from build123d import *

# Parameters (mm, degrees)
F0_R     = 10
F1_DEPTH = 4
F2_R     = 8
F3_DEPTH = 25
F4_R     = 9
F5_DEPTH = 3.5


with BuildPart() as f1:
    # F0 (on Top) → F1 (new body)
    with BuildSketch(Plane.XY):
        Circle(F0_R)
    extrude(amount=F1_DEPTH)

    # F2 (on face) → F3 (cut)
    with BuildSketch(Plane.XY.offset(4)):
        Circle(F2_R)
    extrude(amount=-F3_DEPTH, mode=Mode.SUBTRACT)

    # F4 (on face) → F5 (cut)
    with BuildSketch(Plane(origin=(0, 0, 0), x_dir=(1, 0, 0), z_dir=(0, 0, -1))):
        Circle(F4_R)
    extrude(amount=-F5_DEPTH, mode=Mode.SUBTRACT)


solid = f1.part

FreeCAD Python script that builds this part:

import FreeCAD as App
import Part
import Sketcher
from FreeCAD import Vector
Q = App.Units.Quantity

doc = App.newDocument("Part")
body = doc.addObject("PartDesign::Body", "Body")

# Sketch on XY plane
sketch1 = body.newObject("Sketcher::SketchObject", "Sketch")
sketch1.AttachmentSupport = (doc.getObject("XY_Plane"), [""])
sketch1.MapMode = "FlatFace"
sketch1.addGeometry(Part.Circle(Vector(0, 0, 0), Vector(0, 0, 1), 10), False)
sketch1.addConstraint(Sketcher.Constraint("Coincident", 0, 3, -1, 1))
sketch1.addConstraint(Sketcher.Constraint("Diameter", 0, Q("20 mm")))
pad1 = body.newObject("PartDesign::Pad", "Pad")
pad1.Profile = sketch1
pad1.Length = 4

# Sketch on XY plane
sketch2 = body.newObject("Sketcher::SketchObject", "Sketch001")
sketch2.AttachmentSupport = (doc.getObject("XY_Plane"), [""])
sketch2.MapMode = "FlatFace"
sketch2.AttachmentOffset = App.Placement(Vector(0, 0, 4), App.Rotation())
sketch2.addGeometry(Part.Circle(Vector(0, 0, 0), Vector(0, 0, 1), 8), False)
sketch2.addConstraint(Sketcher.Constraint("Coincident", 0, 3, -1, 1))
sketch2.addConstraint(Sketcher.Constraint("Diameter", 0, Q("16 mm")))
pocket1 = body.newObject("PartDesign::Pocket", "Pocket")
pocket1.Profile = sketch2
pocket1.Length = 25

# Sketch on XY plane
sketch3 = body.newObject("Sketcher::SketchObject", "Sketch002")
sketch3.AttachmentSupport = (doc.getObject("XY_Plane"), [""])
sketch3.MapMode = "FlatFace"
sketch3.addGeometry(Part.Circle(Vector(0, 0, 0), Vector(0, 0, 1), 9), False)
sketch3.addConstraint(Sketcher.Constraint("Coincident", 0, 3, -1, 1))
sketch3.addConstraint(Sketcher.Constraint("Diameter", 0, Q("18 mm")))
pocket2 = body.newObject("PartDesign::Pocket", "Pocket001")
pocket2.Profile = sketch3
pocket2.Length = 3.5
pocket2.Reversed = True

doc.recompute()
